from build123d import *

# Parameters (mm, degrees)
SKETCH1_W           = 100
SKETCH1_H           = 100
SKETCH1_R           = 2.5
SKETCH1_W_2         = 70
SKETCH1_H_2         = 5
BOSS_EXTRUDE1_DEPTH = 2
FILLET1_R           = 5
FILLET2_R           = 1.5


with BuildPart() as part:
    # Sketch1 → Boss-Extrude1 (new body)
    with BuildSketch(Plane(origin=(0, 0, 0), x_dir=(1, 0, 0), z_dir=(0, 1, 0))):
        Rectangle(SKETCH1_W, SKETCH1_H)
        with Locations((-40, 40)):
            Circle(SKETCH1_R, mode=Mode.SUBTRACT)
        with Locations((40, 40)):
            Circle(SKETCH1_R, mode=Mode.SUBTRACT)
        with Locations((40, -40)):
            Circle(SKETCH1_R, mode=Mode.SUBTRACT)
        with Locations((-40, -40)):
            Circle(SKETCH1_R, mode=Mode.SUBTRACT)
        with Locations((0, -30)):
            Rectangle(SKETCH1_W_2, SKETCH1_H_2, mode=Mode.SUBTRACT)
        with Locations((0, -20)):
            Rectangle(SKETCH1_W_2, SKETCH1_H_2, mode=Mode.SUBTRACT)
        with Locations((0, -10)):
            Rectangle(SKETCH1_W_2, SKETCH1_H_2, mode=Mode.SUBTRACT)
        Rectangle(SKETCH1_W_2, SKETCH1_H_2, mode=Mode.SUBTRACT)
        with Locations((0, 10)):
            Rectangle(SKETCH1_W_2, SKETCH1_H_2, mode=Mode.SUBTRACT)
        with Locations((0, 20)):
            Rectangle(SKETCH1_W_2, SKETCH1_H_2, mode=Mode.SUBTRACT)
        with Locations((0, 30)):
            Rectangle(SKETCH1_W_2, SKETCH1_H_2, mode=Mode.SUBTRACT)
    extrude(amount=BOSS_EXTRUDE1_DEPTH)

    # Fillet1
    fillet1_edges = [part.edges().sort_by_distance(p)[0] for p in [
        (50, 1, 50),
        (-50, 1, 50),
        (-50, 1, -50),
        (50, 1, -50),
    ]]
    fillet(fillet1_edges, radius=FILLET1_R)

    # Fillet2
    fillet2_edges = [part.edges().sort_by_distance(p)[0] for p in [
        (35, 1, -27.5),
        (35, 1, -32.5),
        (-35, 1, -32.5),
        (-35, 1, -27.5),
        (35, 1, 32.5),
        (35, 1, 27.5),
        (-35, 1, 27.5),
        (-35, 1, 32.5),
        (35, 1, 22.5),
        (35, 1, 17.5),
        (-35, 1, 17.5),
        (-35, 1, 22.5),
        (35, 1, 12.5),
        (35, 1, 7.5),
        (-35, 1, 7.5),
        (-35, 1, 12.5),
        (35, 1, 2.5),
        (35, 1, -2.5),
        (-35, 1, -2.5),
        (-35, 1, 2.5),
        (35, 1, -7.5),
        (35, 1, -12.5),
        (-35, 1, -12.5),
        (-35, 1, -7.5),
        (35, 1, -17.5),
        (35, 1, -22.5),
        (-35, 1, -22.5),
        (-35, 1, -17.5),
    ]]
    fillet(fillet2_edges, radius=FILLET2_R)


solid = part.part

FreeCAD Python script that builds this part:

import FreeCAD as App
import Part
import Sketcher

V = App.Vector


def edges_at(feature, points):
    """Names of the edges that pass closest to the given points."""
    edges = feature.Shape.Edges
    near = lambda p: min(range(len(edges)), key=lambda i: edges[i].distToShape(Part.Vertex(*p))[0])
    return sorted({f"Edge{near(p) + 1}" for p in points})


def add_polygon(sketch, points):
    """Adds a closed chain of lines whose ends are joined by coincident constraints."""
    first, n = sketch.GeometryCount, len(points)
    for a, b in zip(points, points[1:] + points[:1]):
        sketch.addGeometry(Part.LineSegment(App.Vector(*a, 0), App.Vector(*b, 0)), False)
    for i in range(n):
        sketch.addConstraint(Sketcher.Constraint("Coincident", first + i, 2, first + (i + 1) % n, 1))

doc = App.newDocument("Part")
body = doc.addObject("PartDesign::Body", "Body")

# Sketch on XZ plane
sketch1 = body.newObject("Sketcher::SketchObject", "Sketch")
sketch1.AttachmentSupport = (doc.getObject("XZ_Plane"), [""])
sketch1.MapMode = "FlatFace"
add_polygon(sketch1, [(-50, -50), (-50, 50), (50, 50), (50, -50)])  # lines 0-3
sketch1.addGeometry(Part.Circle(V(-40, 40, 0), V(0, 0, 1), 2.5), False)  # 4
add_polygon(sketch1, [(35, 32.5), (-35, 32.5), (-35, 27.5), (35, 27.5)])  # lines 5-8
sketch1.addGeometry(Part.Circle(V(40, 40, 0), V(0, 0, 1), 2.5), False)  # 9
add_polygon(sketch1, [(35, 22.5), (-35, 22.5), (-35, 17.5), (35, 17.5)])  # lines 10-13
add_polygon(sketch1, [(35, 12.5), (-35, 12.5), (-35, 7.5), (35, 7.5)])  # lines 14-17
sketch1.addGeometry(Part.Circle(V(-40, -40, 0), V(0, 0, 1), 2.5), False)  # 18
add_polygon(sketch1, [(35, 2.5), (-35, 2.5), (-35, -2.5), (35, -2.5)])  # lines 19-22
add_polygon(sketch1, [(35, -7.5), (-35, -7.5), (-35, -12.5), (35, -12.5)])  # lines 23-26
add_polygon(sketch1, [(35, -17.5), (-35, -17.5), (-35, -22.5), (35, -22.5)])  # lines 27-30
add_polygon(sketch1, [(35, -27.5), (-35, -27.5), (-35, -32.5), (35, -32.5)])  # lines 31-34
sketch1.addGeometry(Part.Circle(V(40, -40, 0), V(0, 0, 1), 2.5), False)  # 35
sketch1.addConstraint([
    Sketcher.Constraint("Vertical", 0),
    Sketcher.Constraint("Horizontal", 1),
    Sketcher.Constraint("Vertical", 2),
    Sketcher.Constraint("Horizontal", 3),
    Sketcher.Constraint("Horizontal", 5),
    Sketcher.Constraint("Vertical", 6),
    Sketcher.Constraint("Horizontal", 7),
    Sketcher.Constraint("Vertical", 8),
    Sketcher.Constraint("Horizontal", 10),
    Sketcher.Constraint("Vertical", 11),
    Sketcher.Constraint("Horizontal", 12),
    Sketcher.Constraint("Vertical", 13),
    Sketcher.Constraint("Horizontal", 14),
    Sketcher.Constraint("Vertical", 15),
    Sketcher.Constraint("Horizontal", 16),
    Sketcher.Constraint("Vertical", 17),
    Sketcher.Constraint("Horizontal", 19),
    Sketcher.Constraint("Vertical", 20),
    Sketcher.Constraint("Horizontal", 21),
    Sketcher.Constraint("Vertical", 22),
    Sketcher.Constraint("Horizontal", 23),
    Sketcher.Constraint("Vertical", 24),
    Sketcher.Constraint("Horizontal", 25),
    Sketcher.Constraint("Vertical", 26),
    Sketcher.Constraint("Horizontal", 27),
    Sketcher.Constraint("Vertical", 28),
    Sketcher.Constraint("Horizontal", 29),
    Sketcher.Constraint("Vertical", 30),
    Sketcher.Constraint("Horizontal", 31),
    Sketcher.Constraint("Vertical", 32),
    Sketcher.Constraint("Horizontal", 33),
    Sketcher.Constraint("Vertical", 34),
    Sketcher.Constraint("Equal", 4, 9),
    Sketcher.Constraint("Equal", 9, 18),
    Sketcher.Constraint("Equal", 18, 35),
    Sketcher.Constraint("Symmetric", 9, 3, 18, 3, -1, 1),
    Sketcher.Constraint("Symmetric", 4, 3, 35, 3, -1, 1),
    Sketcher.Constraint("Symmetric", 0, 2, 2, 2, -1, 1),
    Sketcher.Constraint("Symmetric", 19, 2, 21, 2, -1, 1),
    Sketcher.Constraint("Symmetric", 16, 2, 23, 2, -1, 1),
    Sketcher.Constraint("Symmetric", 14, 2, 25, 2, -1, 1),
    Sketcher.Constraint("Symmetric", 12, 2, 27, 2, -1, 1),
    Sketcher.Constraint("Symmetric", 10, 2, 29, 2, -1, 1),
    Sketcher.Constraint("Symmetric", 7, 2, 31, 2, -1, 1),
    Sketcher.Constraint("Symmetric", 5, 2, 33, 2, -1, 1),
    Sketcher.Constraint("Symmetric", 4, 3, 9, 3, -2),
    Sketcher.Constraint("Vertical", 6, 2, 10, 2),
    Sketcher.Constraint("Vertical", 8, 2, 12, 2),
    Sketcher.Constraint("Vertical", 11, 2, 14, 2),
    Sketcher.Constraint("Vertical", 13, 2, 16, 2),
    Sketcher.Constraint("Vertical", 15, 2, 19, 2),
    Sketcher.Constraint("Vertical", 17, 2, 21, 2),
    Sketcher.Constraint("Equal", 3, 0),
    Sketcher.Constraint("Equal", 8, 11),
    Sketcher.Constraint("Equal", 13, 15),
    Sketcher.Constraint("Equal", 17, 20),
    Sketcher.Constraint("Diameter", 4, 5.0),
    Sketcher.Constraint("DistanceX", 1, 1, 1, 2, 100.0),
    Sketcher.Constraint("DistanceX", 5, 2, 5, 1, 70.0),
    Sketcher.Constraint("DistanceY", 6, 2, 6, 1, 5.0),
    Sketcher.Constraint("DistanceX", 4, 3, -1, 1, 40.0),
    Sketcher.Constraint("DistanceY", -1, 1, 4, 3, 40.0),
    Sketcher.Constraint("DistanceY", 10, 2, 6, 2, 5.0),
    Sketcher.Constraint("DistanceY", 14, 2, 11, 2, 5.0),
    Sketcher.Constraint("DistanceY", 19, 2, 15, 2, 5.0),
])
pad1 = body.newObject("PartDesign::Pad", "Pad")
pad1.Profile = sketch1
pad1.Length = 2
pad1.Reversed = True
doc.recompute()

fillet = body.newObject("PartDesign::Fillet", "Fillet")
fillet.Base = (pad1, edges_at(pad1, [
    (50, 1, 50),
    (-50, 1, 50),
    (-50, 1, -50),
    (50, 1, -50),
]))
fillet.Radius = 5
doc.recompute()

fillet2 = body.newObject("PartDesign::Fillet", "Fillet001")
fillet2.Base = (fillet, edges_at(fillet, [
    (35, 1, -27.5),
    (35, 1, -32.5),
    (-35, 1, -32.5),
    (-35, 1, -27.5),
    (35, 1, 32.5),
    (35, 1, 27.5),
    (-35, 1, 27.5),
    (-35, 1, 32.5),
    (35, 1, 22.5),
    (35, 1, 17.5),
    (-35, 1, 17.5),
    (-35, 1, 22.5),
    (35, 1, 12.5),
    (35, 1, 7.5),
    (-35, 1, 7.5),
    (-35, 1, 12.5),
    (35, 1, 2.5),
    (35, 1, -2.5),
    (-35, 1, -2.5),
    (-35, 1, 2.5),
    (35, 1, -7.5),
    (35, 1, -12.5),
    (-35, 1, -12.5),
    (-35, 1, -7.5),
    (35, 1, -17.5),
    (35, 1, -22.5),
    (-35, 1, -22.5),
    (-35, 1, -17.5),
]))
fillet2.Radius = 1.5

doc.recompute()
